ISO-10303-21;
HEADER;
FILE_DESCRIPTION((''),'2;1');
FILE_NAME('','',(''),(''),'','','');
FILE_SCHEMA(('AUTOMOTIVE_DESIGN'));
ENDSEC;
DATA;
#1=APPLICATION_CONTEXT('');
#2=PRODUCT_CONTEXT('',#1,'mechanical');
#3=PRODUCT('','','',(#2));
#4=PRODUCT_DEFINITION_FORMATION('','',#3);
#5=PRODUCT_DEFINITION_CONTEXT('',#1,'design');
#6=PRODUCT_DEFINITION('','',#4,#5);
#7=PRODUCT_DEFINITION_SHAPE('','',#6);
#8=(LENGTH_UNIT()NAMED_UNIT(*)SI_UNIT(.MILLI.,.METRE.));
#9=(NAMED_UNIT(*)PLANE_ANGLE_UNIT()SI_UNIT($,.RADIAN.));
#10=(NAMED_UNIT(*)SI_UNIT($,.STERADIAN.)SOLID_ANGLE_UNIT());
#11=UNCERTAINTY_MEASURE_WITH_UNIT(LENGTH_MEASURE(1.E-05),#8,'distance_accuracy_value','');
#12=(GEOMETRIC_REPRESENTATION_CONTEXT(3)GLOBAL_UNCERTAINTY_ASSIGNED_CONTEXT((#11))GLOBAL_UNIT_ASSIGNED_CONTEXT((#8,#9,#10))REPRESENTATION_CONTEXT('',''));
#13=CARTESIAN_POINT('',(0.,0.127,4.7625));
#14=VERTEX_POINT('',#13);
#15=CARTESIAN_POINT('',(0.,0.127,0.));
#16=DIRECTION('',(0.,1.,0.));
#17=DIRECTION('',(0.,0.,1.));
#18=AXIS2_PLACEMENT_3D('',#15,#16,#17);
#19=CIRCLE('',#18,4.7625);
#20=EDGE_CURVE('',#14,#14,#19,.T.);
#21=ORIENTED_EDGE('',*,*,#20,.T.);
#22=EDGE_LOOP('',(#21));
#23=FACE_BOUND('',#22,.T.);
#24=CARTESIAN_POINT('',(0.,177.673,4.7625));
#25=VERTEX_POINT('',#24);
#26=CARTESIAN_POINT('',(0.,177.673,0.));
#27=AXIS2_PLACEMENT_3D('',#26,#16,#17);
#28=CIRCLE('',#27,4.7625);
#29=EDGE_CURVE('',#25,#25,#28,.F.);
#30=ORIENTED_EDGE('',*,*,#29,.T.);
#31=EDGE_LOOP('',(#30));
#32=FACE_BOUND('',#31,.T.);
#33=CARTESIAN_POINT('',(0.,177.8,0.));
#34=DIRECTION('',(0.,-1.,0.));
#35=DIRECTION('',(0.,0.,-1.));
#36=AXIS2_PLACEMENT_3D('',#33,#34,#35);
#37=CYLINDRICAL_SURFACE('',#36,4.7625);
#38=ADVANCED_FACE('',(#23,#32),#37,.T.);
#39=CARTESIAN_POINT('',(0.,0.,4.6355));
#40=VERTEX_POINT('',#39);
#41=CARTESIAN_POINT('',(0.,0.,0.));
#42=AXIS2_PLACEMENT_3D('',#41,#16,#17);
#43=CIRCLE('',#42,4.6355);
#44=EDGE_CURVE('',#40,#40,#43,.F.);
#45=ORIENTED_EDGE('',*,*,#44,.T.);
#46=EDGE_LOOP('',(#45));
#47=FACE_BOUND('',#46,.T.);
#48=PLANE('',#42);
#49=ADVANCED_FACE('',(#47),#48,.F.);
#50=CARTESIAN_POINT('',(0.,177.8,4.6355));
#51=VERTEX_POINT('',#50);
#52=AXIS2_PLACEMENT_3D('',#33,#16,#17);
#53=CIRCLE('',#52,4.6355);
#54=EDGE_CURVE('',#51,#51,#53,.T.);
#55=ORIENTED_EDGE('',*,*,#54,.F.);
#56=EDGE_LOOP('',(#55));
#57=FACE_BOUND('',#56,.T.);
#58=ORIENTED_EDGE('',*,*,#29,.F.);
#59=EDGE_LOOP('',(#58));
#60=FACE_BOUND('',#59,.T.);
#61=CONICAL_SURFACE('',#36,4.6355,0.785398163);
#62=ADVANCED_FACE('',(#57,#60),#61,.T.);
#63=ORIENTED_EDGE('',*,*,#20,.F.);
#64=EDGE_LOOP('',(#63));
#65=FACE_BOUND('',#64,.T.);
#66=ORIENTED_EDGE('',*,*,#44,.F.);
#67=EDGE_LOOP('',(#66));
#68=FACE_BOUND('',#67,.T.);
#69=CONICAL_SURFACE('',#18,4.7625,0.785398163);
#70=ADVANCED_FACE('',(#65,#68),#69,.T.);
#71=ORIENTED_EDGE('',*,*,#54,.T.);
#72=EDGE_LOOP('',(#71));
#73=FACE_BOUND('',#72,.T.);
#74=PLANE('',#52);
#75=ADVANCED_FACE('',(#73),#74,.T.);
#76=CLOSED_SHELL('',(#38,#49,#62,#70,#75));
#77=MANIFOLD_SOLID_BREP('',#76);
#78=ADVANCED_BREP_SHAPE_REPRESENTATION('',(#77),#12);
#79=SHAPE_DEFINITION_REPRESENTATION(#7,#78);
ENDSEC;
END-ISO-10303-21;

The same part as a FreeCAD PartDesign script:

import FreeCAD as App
import Part
import Sketcher
from FreeCAD import Vector
Q = App.Units.Quantity


def edges_at(feature, points):
    """Names of the edges that pass closest to the given points."""
    edges = feature.Shape.Edges
    near = lambda p: min(range(len(edges)), key=lambda i: edges[i].distToShape(Part.Vertex(*p))[0])
    return sorted({f"Edge{near(p) + 1}" for p in points})

doc = App.newDocument("Part")
body = doc.addObject("PartDesign::Body", "Body")

sketch1 = body.newObject("Sketcher::SketchObject", "Sketch")
sketch1.AttachmentSupport = (doc.getObject("XZ_Plane"), [""])
sketch1.MapMode = "FlatFace"
sketch1.addGeometry(Part.Circle(Vector(0, 0, 0), Vector(0, 0, 1), 4.7625), False)
sketch1.addConstraint([
    Sketcher.Constraint("Coincident", 0, 3, -1, 1),
    Sketcher.Constraint("Diameter", 0, Q("0.375 in")),
])
pad1 = body.newObject("PartDesign::Pad", "Pad")
pad1.Profile = sketch1
pad1.Length = Q("7 in")
pad1.Reversed = True
doc.recompute()

chamfer = body.newObject("PartDesign::Chamfer", "Chamfer")
chamfer.Base = (pad1, edges_at(pad1, [(-4.763, 0, 0), (-4.763, 177.8, 0)]))
chamfer.Size = Q("0.005 in")

doc.recompute()
